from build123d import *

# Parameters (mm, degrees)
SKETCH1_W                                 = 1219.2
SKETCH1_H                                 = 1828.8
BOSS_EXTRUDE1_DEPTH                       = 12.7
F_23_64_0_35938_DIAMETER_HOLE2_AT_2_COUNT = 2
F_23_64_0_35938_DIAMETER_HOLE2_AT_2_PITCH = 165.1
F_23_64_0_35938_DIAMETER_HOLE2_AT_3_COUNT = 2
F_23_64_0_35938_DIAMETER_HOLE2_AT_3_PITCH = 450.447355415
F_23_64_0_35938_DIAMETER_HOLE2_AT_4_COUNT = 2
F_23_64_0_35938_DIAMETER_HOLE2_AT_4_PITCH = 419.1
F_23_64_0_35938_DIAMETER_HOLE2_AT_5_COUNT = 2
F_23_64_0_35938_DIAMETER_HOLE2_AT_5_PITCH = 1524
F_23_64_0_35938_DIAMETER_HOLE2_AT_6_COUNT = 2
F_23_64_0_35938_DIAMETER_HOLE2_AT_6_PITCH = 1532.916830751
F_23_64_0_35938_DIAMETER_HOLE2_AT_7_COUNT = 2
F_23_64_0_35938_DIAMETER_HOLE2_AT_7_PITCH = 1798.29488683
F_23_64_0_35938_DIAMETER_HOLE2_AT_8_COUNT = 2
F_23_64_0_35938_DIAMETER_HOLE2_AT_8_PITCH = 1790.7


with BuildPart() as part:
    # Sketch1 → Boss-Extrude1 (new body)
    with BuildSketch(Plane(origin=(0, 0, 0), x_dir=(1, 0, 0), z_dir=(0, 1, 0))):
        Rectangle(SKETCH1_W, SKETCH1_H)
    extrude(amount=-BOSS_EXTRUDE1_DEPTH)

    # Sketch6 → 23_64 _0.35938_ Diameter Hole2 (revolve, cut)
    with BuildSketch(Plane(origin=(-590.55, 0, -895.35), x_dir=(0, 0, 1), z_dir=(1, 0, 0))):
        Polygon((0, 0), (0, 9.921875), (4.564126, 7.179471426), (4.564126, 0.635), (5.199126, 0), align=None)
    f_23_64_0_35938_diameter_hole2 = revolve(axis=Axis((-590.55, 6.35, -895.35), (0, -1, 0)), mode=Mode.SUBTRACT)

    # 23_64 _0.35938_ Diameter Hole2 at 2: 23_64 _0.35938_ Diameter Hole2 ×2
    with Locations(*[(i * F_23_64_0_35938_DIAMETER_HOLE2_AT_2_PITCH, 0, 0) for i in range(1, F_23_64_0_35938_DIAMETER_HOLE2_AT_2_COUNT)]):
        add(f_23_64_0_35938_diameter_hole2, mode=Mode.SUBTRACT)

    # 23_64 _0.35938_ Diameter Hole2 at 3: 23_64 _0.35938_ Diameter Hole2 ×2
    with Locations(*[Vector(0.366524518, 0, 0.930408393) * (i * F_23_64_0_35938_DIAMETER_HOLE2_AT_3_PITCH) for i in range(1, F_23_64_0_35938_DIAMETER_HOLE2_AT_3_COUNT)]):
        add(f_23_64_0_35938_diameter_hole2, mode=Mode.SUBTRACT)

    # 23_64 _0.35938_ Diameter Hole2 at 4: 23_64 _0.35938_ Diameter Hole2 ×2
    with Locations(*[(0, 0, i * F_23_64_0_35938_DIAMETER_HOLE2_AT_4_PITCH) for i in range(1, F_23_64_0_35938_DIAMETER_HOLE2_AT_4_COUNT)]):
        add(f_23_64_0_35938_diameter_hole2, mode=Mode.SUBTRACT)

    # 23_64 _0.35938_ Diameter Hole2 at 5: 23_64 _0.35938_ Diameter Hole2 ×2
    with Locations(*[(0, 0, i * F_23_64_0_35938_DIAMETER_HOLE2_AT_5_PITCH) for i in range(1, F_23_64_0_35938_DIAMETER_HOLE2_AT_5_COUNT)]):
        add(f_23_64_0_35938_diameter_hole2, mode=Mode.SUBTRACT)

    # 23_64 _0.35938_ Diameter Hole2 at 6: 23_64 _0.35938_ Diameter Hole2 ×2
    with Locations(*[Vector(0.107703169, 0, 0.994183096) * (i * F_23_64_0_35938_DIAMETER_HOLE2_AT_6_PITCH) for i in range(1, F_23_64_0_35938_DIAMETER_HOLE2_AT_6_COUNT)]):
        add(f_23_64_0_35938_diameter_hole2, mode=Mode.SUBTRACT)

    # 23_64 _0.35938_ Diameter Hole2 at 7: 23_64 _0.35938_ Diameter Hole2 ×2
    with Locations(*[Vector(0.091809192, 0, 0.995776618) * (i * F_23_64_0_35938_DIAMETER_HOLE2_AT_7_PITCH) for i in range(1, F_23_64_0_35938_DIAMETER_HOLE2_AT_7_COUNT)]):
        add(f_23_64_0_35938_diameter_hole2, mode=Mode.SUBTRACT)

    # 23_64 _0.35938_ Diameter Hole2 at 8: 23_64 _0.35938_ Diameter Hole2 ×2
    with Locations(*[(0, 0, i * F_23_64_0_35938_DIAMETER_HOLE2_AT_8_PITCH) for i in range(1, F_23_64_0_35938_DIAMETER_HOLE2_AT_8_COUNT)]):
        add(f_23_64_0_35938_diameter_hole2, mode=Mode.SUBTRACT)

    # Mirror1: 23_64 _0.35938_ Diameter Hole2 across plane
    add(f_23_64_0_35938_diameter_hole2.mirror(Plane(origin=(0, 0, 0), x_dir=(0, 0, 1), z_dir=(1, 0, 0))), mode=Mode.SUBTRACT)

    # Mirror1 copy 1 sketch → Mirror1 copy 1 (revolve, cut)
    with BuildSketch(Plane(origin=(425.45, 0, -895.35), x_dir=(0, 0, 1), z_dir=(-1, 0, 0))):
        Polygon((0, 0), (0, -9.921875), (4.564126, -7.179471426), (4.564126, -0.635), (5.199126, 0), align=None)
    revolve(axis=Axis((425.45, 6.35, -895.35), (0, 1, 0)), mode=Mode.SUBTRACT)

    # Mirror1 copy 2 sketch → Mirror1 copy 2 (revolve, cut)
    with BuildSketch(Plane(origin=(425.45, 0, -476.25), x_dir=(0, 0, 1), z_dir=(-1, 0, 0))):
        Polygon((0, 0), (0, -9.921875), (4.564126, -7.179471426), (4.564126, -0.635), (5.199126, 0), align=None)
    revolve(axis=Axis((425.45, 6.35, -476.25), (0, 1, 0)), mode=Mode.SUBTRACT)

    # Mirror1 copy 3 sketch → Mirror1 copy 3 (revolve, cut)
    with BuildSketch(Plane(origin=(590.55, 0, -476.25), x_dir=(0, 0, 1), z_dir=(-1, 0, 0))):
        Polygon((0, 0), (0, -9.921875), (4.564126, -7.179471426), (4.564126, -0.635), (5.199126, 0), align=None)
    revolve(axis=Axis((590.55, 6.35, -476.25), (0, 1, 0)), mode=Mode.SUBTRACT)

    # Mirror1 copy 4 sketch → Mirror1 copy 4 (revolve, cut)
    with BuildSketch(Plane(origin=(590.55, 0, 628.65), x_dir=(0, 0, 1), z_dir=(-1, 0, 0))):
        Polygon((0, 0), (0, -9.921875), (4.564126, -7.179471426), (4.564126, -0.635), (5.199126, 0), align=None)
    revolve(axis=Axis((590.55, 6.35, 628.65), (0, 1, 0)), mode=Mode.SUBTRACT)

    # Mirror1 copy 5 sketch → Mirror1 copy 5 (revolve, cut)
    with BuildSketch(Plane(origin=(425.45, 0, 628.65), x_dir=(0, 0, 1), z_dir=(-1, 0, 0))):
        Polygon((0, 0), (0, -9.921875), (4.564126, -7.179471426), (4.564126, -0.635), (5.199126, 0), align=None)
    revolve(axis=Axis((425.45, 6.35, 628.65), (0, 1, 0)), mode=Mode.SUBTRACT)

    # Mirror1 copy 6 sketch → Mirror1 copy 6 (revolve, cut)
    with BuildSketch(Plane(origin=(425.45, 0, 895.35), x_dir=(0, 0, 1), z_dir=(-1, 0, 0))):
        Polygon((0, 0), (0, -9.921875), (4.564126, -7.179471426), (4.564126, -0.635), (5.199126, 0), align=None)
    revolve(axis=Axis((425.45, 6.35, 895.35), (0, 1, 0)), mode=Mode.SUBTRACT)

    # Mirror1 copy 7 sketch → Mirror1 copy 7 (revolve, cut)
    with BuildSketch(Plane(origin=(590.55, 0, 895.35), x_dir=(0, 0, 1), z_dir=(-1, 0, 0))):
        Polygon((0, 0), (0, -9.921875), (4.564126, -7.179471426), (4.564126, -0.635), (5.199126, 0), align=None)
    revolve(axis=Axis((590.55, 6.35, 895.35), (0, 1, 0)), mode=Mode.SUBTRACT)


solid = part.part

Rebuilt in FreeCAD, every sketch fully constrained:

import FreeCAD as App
import Part
import Sketcher
from FreeCAD import Vector
Q = App.Units.Quantity


def add_polygon(sketch, points):
    """Adds a closed chain of lines whose ends are joined by coincident constraints."""
    first, n = sketch.GeometryCount, len(points)
    for a, b in zip(points, points[1:] + points[:1]):
        sketch.addGeometry(Part.LineSegment(App.Vector(*a, 0), App.Vector(*b, 0)), False)
    for i in range(n):
        sketch.addConstraint(Sketcher.Constraint("Coincident", first + i, 2, first + (i + 1) % n, 1))

doc = App.newDocument("Part")
body = doc.addObject("PartDesign::Body", "Body")

# Sketch on XZ plane
sketch1 = body.newObject("Sketcher::SketchObject", "Sketch")
sketch1.AttachmentSupport = (doc.getObject("XZ_Plane"), [""])
sketch1.MapMode = "FlatFace"
add_polygon(sketch1, [(-609.6, -914.4), (-609.6, 914.4), (609.6, 914.4), (609.6, -914.4)])  # lines 0-3
sketch1.addConstraint([
    Sketcher.Constraint("Vertical", 0),
    Sketcher.Constraint("Horizontal", 1),
    Sketcher.Constraint("Vertical", 2),
    Sketcher.Constraint("Horizontal", 3),
    Sketcher.Constraint("Symmetric", 0, 2, 2, 2, -1, 1),
    Sketcher.Constraint("DistanceX", 1, 1, 1, 2, Q("48 in")),
    Sketcher.Constraint("DistanceY", 0, 1, 0, 2, Q("72 in")),
])
pad1 = body.newObject("PartDesign::Pad", "Pad")
pad1.Profile = sketch1
pad1.Length = Q("0.5 in")

# Sketch on YZ plane
sketch2 = body.newObject("Sketcher::SketchObject", "Sketch001")
sketch2.AttachmentSupport = (doc.getObject("YZ_Plane"), [""])
sketch2.MapMode = "FlatFace"
sketch2.AttachmentOffset = App.Placement(Vector(0, 0, -23.25 * 25.4), App.Rotation())
add_polygon(sketch2, [(-9.921875, -895.35), (0, -895.35), (0, -890.150874), (-0.635, -890.785874), (-7.179471, -890.785874)])  # lines 0-4
sketch2.addGeometry(Part.LineSegment(Vector(0, -895.35, 0), Vector(-9.921875, -895.35, 0)), True)  # axis
sketch2.addConstraint([
    Sketcher.Constraint("Horizontal", 0),
    Sketcher.Constraint("Vertical", 1),
    Sketcher.Constraint("Horizontal", 3),
    Sketcher.Constraint("Horizontal", 5),
    Sketcher.Constraint("Coincident", 5, 1, 0, 2),
    Sketcher.Constraint("PointOnObject", 0, 2, -2),
    Sketcher.Constraint("Equal", 0, 5),
    Sketcher.Constraint("Angle", 2, Q("-135 deg")),
    Sketcher.Constraint("Angle", 4, Q("-121 deg")),
    Sketcher.Constraint("DistanceX", 0, 1, 0, 2, Q("0.390625 in")),
    Sketcher.Constraint("DistanceY", 0, 2, -1, 1, Q("35.25 in")),
    Sketcher.Constraint("DistanceX", 2, 2, -1, 1, Q("0.025 in")),
    Sketcher.Constraint("DistanceX", 3, 2, 3, 1, Q("6.544471 mm")),
])
groove = body.newObject("PartDesign::Groove", "Groove")
groove.Profile = sketch2
groove.ReferenceAxis = (sketch2, ["Axis0"])
groove.Angle = 360
doc.recompute()

linearpattern = body.newObject("PartDesign::LinearPattern", "LinearPattern")
linearpattern.Originals = [groove]
linearpattern.Direction = (doc.getObject("X_Axis"), [""])
linearpattern.Mode = "offset"
linearpattern.Offset = Q("6.5 in")
linearpattern.Occurrences = 2
body.Tip = linearpattern
doc.recompute()

datumline = body.newObject("PartDesign::Line", "DatumLine")
datumline.Placement = App.Placement(Vector(0, 0, 0), App.Rotation(Vector(0, 0, 1), Vector(0.366524518, 0, 0.930408393)))
linearpattern2 = body.newObject("PartDesign::LinearPattern", "LinearPattern001")
linearpattern2.Originals = [groove]
linearpattern2.Direction = (datumline, [""])
linearpattern2.Mode = "offset"
linearpattern2.Offset = 450.447355
linearpattern2.Occurrences = 2
body.Tip = linearpattern2
doc.recompute()

linearpattern3 = body.newObject("PartDesign::LinearPattern", "LinearPattern002")
linearpattern3.Originals = [groove]
linearpattern3.Direction = (doc.getObject("Z_Axis"), [""])
linearpattern3.Mode = "offset"
linearpattern3.Offset = Q("16.5 in")
linearpattern3.Occurrences = 2
body.Tip = linearpattern3
doc.recompute()

linearpattern4 = body.newObject("PartDesign::LinearPattern", "LinearPattern003")
linearpattern4.Originals = [groove]
linearpattern4.Direction = (doc.getObject("Z_Axis"), [""])
linearpattern4.Mode = "offset"
linearpattern4.Offset = Q("60 in")
linearpattern4.Occurrences = 2
body.Tip = linearpattern4
doc.recompute()

datumline2 = body.newObject("PartDesign::Line", "DatumLine001")
datumline2.Placement = App.Placement(Vector(0, 0, 0), App.Rotation(Vector(0, 0, 1), Vector(0.107703169, 0, 0.994183096)))
linearpattern5 = body.newObject("PartDesign::LinearPattern", "LinearPattern004")
linearpattern5.Originals = [groove]
linearpattern5.Direction = (datumline2, [""])
linearpattern5.Mode = "offset"
linearpattern5.Offset = 1532.916832
linearpattern5.Occurrences = 2
body.Tip = linearpattern5
doc.recompute()

datumline3 = body.newObject("PartDesign::Line", "DatumLine002")
datumline3.Placement = App.Placement(Vector(0, 0, 0), App.Rotation(Vector(0, 0, 1), Vector(0.091809192, 0, 0.995776618)))
linearpattern6 = body.newObject("PartDesign::LinearPattern", "LinearPattern005")
linearpattern6.Originals = [groove]
linearpattern6.Direction = (datumline3, [""])
linearpattern6.Mode = "offset"
linearpattern6.Offset = 1798.294887
linearpattern6.Occurrences = 2
body.Tip = linearpattern6
doc.recompute()

linearpattern7 = body.newObject("PartDesign::LinearPattern", "LinearPattern006")
linearpattern7.Originals = [groove]
linearpattern7.Direction = (doc.getObject("Z_Axis"), [""])
linearpattern7.Mode = "offset"
linearpattern7.Offset = Q("70.5 in")
linearpattern7.Occurrences = 2
body.Tip = linearpattern7
doc.recompute()

mirrored = body.newObject("PartDesign::Mirrored", "Mirrored")
mirrored.Originals = [groove]
mirrored.MirrorPlane = (doc.getObject("YZ_Plane"), [""])
body.Tip = mirrored

# Sketch on YZ plane
sketch3 = body.newObject("Sketcher::SketchObject", "Sketch002")
sketch3.AttachmentSupport = (doc.getObject("YZ_Plane"), [""])
sketch3.MapMode = "FlatFace"
sketch3.AttachmentOffset = App.Placement(Vector(0, 0, 16.75 * 25.4), App.Rotation())
add_polygon(sketch3, [(0, -895.35), (-9.921875, -895.35), (-7.179471, -890.785874), (-0.635, -890.785874), (0, -890.150874)])  # lines 0-4
sketch3.addGeometry(Part.LineSegment(Vector(-9.921875, -895.35, 0), Vector(0, -895.35, 0)), True)  # axis
sketch3.addConstraint([
    Sketcher.Constraint("Horizontal", 0),
    Sketcher.Constraint("Horizontal", 2),
    Sketcher.Constraint("Vertical", 4),
    Sketcher.Constraint("Horizontal", 5),
    Sketcher.Constraint("Coincident", 5, 1, 0, 2),
    Sketcher.Constraint("PointOnObject", 3, 2, -2),
    Sketcher.Constraint("PointOnObject", 5, 2, -2),
    Sketcher.Constraint("Angle", 1, Q("59 deg")),
    Sketcher.Constraint("Angle", 3, Q("45 deg")),
    Sketcher.Constraint("DistanceX", 0, 2, 0, 1, Q("0.390625 in")),
    Sketcher.Constraint("DistanceY", 0, 2, -1, 1, Q("35.25 in")),
    Sketcher.Constraint("DistanceX", 2, 2, -1, 1, Q("0.025 in")),
    Sketcher.Constraint("DistanceX", 2, 1, 2, 2, Q("6.544471 mm")),
])
groove2 = body.newObject("PartDesign::Groove", "Groove001")
groove2.Profile = sketch3
groove2.ReferenceAxis = (sketch3, ["Axis0"])
groove2.Angle = 360

# Sketch on YZ plane
sketch4 = body.newObject("Sketcher::SketchObject", "Sketch003")
sketch4.AttachmentSupport = (doc.getObject("YZ_Plane"), [""])
sketch4.MapMode = "FlatFace"
sketch4.AttachmentOffset = App.Placement(Vector(0, 0, 16.75 * 25.4), App.Rotation())
add_polygon(sketch4, [(0, -476.25), (-9.921875, -476.25), (-7.179471, -471.685874), (-0.635, -471.685874), (0, -471.050874)])  # lines 0-4
sketch4.addGeometry(Part.LineSegment(Vector(-9.921875, -476.25, 0), Vector(0, -476.25, 0)), True)  # axis
sketch4.addConstraint([
    Sketcher.Constraint("Horizontal", 0),
    Sketcher.Constraint("Horizontal", 2),
    Sketcher.Constraint("Vertical", 4),
    Sketcher.Constraint("Horizontal", 5),
    Sketcher.Constraint("Coincident", 5, 1, 0, 2),
    Sketcher.Constraint("PointOnObject", 3, 2, -2),
    Sketcher.Constraint("PointOnObject", 5, 2, -2),
    Sketcher.Constraint("Angle", 1, Q("59 deg")),
    Sketcher.Constraint("Angle", 3, Q("45 deg")),
    Sketcher.Constraint("DistanceX", 0, 2, 0, 1, Q("0.390625 in")),
    Sketcher.Constraint("DistanceY", 0, 2, -1, 1, Q("18.75 in")),
    Sketcher.Constraint("DistanceX", 2, 2, -1, 1, Q("0.025 in")),
    Sketcher.Constraint("DistanceX", 2, 1, 2, 2, Q("6.544471 mm")),
])
groove3 = body.newObject("PartDesign::Groove", "Groove002")
groove3.Profile = sketch4
groove3.ReferenceAxis = (sketch4, ["Axis0"])
groove3.Angle = 360

# Sketch on YZ plane
sketch5 = body.newObject("Sketcher::SketchObject", "Sketch004")
sketch5.AttachmentSupport = (doc.getObject("YZ_Plane"), [""])
sketch5.MapMode = "FlatFace"
sketch5.AttachmentOffset = App.Placement(Vector(0, 0, 23.25 * 25.4), App.Rotation())
add_polygon(sketch5, [(0, -476.25), (-9.921875, -476.25), (-7.179471, -471.685874), (-0.635, -471.685874), (0, -471.050874)])  # lines 0-4
sketch5.addGeometry(Part.LineSegment(Vector(-9.921875, -476.25, 0), Vector(0, -476.25, 0)), True)  # axis
sketch5.addConstraint([
    Sketcher.Constraint("Horizontal", 0),
    Sketcher.Constraint("Horizontal", 2),
    Sketcher.Constraint("Vertical", 4),
    Sketcher.Constraint("Horizontal", 5),
    Sketcher.Constraint("Coincident", 5, 1, 0, 2),
    Sketcher.Constraint("PointOnObject", 3, 2, -2),
    Sketcher.Constraint("PointOnObject", 5, 2, -2),
    Sketcher.Constraint("Angle", 1, Q("59 deg")),
    Sketcher.Constraint("Angle", 3, Q("45 deg")),
    Sketcher.Constraint("DistanceX", 0, 2, 0, 1, Q("0.390625 in")),
    Sketcher.Constraint("DistanceY", 0, 2, -1, 1, Q("18.75 in")),
    Sketcher.Constraint("DistanceX", 2, 2, -1, 1, Q("0.025 in")),
    Sketcher.Constraint("DistanceX", 2, 1, 2, 2, Q("6.544471 mm")),
])
groove4 = body.newObject("PartDesign::Groove", "Groove003")
groove4.Profile = sketch5
groove4.ReferenceAxis = (sketch5, ["Axis0"])
groove4.Angle = 360

# Sketch on YZ plane
sketch6 = body.newObject("Sketcher::SketchObject", "Sketch005")
sketch6.AttachmentSupport = (doc.getObject("YZ_Plane"), [""])
sketch6.MapMode = "FlatFace"
sketch6.AttachmentOffset = App.Placement(Vector(0, 0, 23.25 * 25.4), App.Rotation())
add_polygon(sketch6, [(0, 628.65), (-9.921875, 628.65), (-7.179471, 633.214126), (-0.635, 633.214126), (0, 633.849126)])  # lines 0-4
sketch6.addGeometry(Part.LineSegment(Vector(-9.921875, 628.65, 0), Vector(0, 628.65, 0)), True)  # axis
sketch6.addConstraint([
    Sketcher.Constraint("Horizontal", 0),
    Sketcher.Constraint("Horizontal", 2),
    Sketcher.Constraint("Vertical", 4),
    Sketcher.Constraint("Horizontal", 5),
    Sketcher.Constraint("Coincident", 5, 1, 0, 2),
    Sketcher.Constraint("PointOnObject", 3, 2, -2),
    Sketcher.Constraint("PointOnObject", 5, 2, -2),
    Sketcher.Constraint("Angle", 1, Q("59 deg")),
    Sketcher.Constraint("Angle", 3, Q("45 deg")),
    Sketcher.Constraint("DistanceX", 0, 2, 0, 1, Q("0.390625 in")),
    Sketcher.Constraint("DistanceY", -1, 1, 0, 2, Q("24.75 in")),
    Sketcher.Constraint("DistanceX", 2, 2, -1, 1, Q("0.025 in")),
    Sketcher.Constraint("DistanceX", 2, 1, 2, 2, Q("6.544471 mm")),
])
groove5 = body.newObject("PartDesign::Groove", "Groove004")
groove5.Profile = sketch6
groove5.ReferenceAxis = (sketch6, ["Axis0"])
groove5.Angle = 360

# Sketch on YZ plane
sketch7 = body.newObject("Sketcher::SketchObject", "Sketch006")
sketch7.AttachmentSupport = (doc.getObject("YZ_Plane"), [""])
sketch7.MapMode = "FlatFace"
sketch7.AttachmentOffset = App.Placement(Vector(0, 0, 16.75 * 25.4), App.Rotation())
add_polygon(sketch7, [(0, 628.65), (-9.921875, 628.65), (-7.179471, 633.214126), (-0.635, 633.214126), (0, 633.849126)])  # lines 0-4
sketch7.addGeometry(Part.LineSegment(Vector(-9.921875, 628.65, 0), Vector(0, 628.65, 0)), True)  # axis
sketch7.addConstraint([
    Sketcher.Constraint("Horizontal", 0),
    Sketcher.Constraint("Horizontal", 2),
    Sketcher.Constraint("Vertical", 4),
    Sketcher.Constraint("Horizontal", 5),
    Sketcher.Constraint("Coincident", 5, 1, 0, 2),
    Sketcher.Constraint("PointOnObject", 3, 2, -2),
    Sketcher.Constraint("PointOnObject", 5, 2, -2),
    Sketcher.Constraint("Angle", 1, Q("59 deg")),
    Sketcher.Constraint("Angle", 3, Q("45 deg")),
    Sketcher.Constraint("DistanceX", 0, 2, 0, 1, Q("0.390625 in")),
    Sketcher.Constraint("DistanceY", -1, 1, 0, 2, Q("24.75 in")),
    Sketcher.Constraint("DistanceX", 2, 2, -1, 1, Q("0.025 in")),
    Sketcher.Constraint("DistanceX", 2, 1, 2, 2, Q("6.544471 mm")),
])
groove6 = body.newObject("PartDesign::Groove", "Groove005")
groove6.Profile = sketch7
groove6.ReferenceAxis = (sketch7, ["Axis0"])
groove6.Angle = 360

# Sketch on YZ plane
sketch8 = body.newObject("Sketcher::SketchObject", "Sketch007")
sketch8.AttachmentSupport = (doc.getObject("YZ_Plane"), [""])
sketch8.MapMode = "FlatFace"
sketch8.AttachmentOffset = App.Placement(Vector(0, 0, 16.75 * 25.4), App.Rotation())
add_polygon(sketch8, [(0, 895.35), (-9.921875, 895.35), (-7.179471, 899.914126), (-0.635, 899.914126), (0, 900.549126)])  # lines 0-4
sketch8.addGeometry(Part.LineSegment(Vector(-9.921875, 895.35, 0), Vector(0, 895.35, 0)), True)  # axis
sketch8.addConstraint([
    Sketcher.Constraint("Horizontal", 0),
    Sketcher.Constraint("Horizontal", 2),
    Sketcher.Constraint("Vertical", 4),
    Sketcher.Constraint("Horizontal", 5),
    Sketcher.Constraint("Coincident", 5, 1, 0, 2),
    Sketcher.Constraint("PointOnObject", 3, 2, -2),
    Sketcher.Constraint("PointOnObject", 5, 2, -2),
    Sketcher.Constraint("Angle", 1, Q("59 deg")),
    Sketcher.Constraint("Angle", 3, Q("45 deg")),
    Sketcher.Constraint("DistanceX", 0, 2, 0, 1, Q("0.390625 in")),
    Sketcher.Constraint("DistanceY", -1, 1, 0, 2, Q("35.25 in")),
    Sketcher.Constraint("DistanceX", 2, 2, -1, 1, Q("0.025 in")),
    Sketcher.Constraint("DistanceX", 2, 1, 2, 2, Q("6.544471 mm")),
])
groove7 = body.newObject("PartDesign::Groove", "Groove006")
groove7.Profile = sketch8
groove7.ReferenceAxis = (sketch8, ["Axis0"])
groove7.Angle = 360

# Sketch on YZ plane
sketch9 = body.newObject("Sketcher::SketchObject", "Sketch008")
sketch9.AttachmentSupport = (doc.getObject("YZ_Plane"), [""])
sketch9.MapMode = "FlatFace"
sketch9.AttachmentOffset = App.Placement(Vector(0, 0, 23.25 * 25.4), App.Rotation())
add_polygon(sketch9, [(0, 895.35), (-9.921875, 895.35), (-7.179471, 899.914126), (-0.635, 899.914126), (0, 900.549126)])  # lines 0-4
sketch9.addGeometry(Part.LineSegment(Vector(-9.921875, 895.35, 0), Vector(0, 895.35, 0)), True)  # axis
sketch9.addConstraint([
    Sketcher.Constraint("Horizontal", 0),
    Sketcher.Constraint("Horizontal", 2),
    Sketcher.Constraint("Vertical", 4),
    Sketcher.Constraint("Horizontal", 5),
    Sketcher.Constraint("Coincident", 5, 1, 0, 2),
    Sketcher.Constraint("PointOnObject", 3, 2, -2),
    Sketcher.Constraint("PointOnObject", 5, 2, -2),
    Sketcher.Constraint("Angle", 1, Q("59 deg")),
    Sketcher.Constraint("Angle", 3, Q("45 deg")),
    Sketcher.Constraint("DistanceX", 0, 2, 0, 1, Q("0.390625 in")),
    Sketcher.Constraint("DistanceY", -1, 1, 0, 2, Q("35.25 in")),
    Sketcher.Constraint("DistanceX", 2, 2, -1, 1, Q("0.025 in")),
    Sketcher.Constraint("DistanceX", 2, 1, 2, 2, Q("6.544471 mm")),
])
groove8 = body.newObject("PartDesign::Groove", "Groove007")
groove8.Profile = sketch9
groove8.ReferenceAxis = (sketch9, ["Axis0"])
groove8.Angle = 360

doc.recompute()
